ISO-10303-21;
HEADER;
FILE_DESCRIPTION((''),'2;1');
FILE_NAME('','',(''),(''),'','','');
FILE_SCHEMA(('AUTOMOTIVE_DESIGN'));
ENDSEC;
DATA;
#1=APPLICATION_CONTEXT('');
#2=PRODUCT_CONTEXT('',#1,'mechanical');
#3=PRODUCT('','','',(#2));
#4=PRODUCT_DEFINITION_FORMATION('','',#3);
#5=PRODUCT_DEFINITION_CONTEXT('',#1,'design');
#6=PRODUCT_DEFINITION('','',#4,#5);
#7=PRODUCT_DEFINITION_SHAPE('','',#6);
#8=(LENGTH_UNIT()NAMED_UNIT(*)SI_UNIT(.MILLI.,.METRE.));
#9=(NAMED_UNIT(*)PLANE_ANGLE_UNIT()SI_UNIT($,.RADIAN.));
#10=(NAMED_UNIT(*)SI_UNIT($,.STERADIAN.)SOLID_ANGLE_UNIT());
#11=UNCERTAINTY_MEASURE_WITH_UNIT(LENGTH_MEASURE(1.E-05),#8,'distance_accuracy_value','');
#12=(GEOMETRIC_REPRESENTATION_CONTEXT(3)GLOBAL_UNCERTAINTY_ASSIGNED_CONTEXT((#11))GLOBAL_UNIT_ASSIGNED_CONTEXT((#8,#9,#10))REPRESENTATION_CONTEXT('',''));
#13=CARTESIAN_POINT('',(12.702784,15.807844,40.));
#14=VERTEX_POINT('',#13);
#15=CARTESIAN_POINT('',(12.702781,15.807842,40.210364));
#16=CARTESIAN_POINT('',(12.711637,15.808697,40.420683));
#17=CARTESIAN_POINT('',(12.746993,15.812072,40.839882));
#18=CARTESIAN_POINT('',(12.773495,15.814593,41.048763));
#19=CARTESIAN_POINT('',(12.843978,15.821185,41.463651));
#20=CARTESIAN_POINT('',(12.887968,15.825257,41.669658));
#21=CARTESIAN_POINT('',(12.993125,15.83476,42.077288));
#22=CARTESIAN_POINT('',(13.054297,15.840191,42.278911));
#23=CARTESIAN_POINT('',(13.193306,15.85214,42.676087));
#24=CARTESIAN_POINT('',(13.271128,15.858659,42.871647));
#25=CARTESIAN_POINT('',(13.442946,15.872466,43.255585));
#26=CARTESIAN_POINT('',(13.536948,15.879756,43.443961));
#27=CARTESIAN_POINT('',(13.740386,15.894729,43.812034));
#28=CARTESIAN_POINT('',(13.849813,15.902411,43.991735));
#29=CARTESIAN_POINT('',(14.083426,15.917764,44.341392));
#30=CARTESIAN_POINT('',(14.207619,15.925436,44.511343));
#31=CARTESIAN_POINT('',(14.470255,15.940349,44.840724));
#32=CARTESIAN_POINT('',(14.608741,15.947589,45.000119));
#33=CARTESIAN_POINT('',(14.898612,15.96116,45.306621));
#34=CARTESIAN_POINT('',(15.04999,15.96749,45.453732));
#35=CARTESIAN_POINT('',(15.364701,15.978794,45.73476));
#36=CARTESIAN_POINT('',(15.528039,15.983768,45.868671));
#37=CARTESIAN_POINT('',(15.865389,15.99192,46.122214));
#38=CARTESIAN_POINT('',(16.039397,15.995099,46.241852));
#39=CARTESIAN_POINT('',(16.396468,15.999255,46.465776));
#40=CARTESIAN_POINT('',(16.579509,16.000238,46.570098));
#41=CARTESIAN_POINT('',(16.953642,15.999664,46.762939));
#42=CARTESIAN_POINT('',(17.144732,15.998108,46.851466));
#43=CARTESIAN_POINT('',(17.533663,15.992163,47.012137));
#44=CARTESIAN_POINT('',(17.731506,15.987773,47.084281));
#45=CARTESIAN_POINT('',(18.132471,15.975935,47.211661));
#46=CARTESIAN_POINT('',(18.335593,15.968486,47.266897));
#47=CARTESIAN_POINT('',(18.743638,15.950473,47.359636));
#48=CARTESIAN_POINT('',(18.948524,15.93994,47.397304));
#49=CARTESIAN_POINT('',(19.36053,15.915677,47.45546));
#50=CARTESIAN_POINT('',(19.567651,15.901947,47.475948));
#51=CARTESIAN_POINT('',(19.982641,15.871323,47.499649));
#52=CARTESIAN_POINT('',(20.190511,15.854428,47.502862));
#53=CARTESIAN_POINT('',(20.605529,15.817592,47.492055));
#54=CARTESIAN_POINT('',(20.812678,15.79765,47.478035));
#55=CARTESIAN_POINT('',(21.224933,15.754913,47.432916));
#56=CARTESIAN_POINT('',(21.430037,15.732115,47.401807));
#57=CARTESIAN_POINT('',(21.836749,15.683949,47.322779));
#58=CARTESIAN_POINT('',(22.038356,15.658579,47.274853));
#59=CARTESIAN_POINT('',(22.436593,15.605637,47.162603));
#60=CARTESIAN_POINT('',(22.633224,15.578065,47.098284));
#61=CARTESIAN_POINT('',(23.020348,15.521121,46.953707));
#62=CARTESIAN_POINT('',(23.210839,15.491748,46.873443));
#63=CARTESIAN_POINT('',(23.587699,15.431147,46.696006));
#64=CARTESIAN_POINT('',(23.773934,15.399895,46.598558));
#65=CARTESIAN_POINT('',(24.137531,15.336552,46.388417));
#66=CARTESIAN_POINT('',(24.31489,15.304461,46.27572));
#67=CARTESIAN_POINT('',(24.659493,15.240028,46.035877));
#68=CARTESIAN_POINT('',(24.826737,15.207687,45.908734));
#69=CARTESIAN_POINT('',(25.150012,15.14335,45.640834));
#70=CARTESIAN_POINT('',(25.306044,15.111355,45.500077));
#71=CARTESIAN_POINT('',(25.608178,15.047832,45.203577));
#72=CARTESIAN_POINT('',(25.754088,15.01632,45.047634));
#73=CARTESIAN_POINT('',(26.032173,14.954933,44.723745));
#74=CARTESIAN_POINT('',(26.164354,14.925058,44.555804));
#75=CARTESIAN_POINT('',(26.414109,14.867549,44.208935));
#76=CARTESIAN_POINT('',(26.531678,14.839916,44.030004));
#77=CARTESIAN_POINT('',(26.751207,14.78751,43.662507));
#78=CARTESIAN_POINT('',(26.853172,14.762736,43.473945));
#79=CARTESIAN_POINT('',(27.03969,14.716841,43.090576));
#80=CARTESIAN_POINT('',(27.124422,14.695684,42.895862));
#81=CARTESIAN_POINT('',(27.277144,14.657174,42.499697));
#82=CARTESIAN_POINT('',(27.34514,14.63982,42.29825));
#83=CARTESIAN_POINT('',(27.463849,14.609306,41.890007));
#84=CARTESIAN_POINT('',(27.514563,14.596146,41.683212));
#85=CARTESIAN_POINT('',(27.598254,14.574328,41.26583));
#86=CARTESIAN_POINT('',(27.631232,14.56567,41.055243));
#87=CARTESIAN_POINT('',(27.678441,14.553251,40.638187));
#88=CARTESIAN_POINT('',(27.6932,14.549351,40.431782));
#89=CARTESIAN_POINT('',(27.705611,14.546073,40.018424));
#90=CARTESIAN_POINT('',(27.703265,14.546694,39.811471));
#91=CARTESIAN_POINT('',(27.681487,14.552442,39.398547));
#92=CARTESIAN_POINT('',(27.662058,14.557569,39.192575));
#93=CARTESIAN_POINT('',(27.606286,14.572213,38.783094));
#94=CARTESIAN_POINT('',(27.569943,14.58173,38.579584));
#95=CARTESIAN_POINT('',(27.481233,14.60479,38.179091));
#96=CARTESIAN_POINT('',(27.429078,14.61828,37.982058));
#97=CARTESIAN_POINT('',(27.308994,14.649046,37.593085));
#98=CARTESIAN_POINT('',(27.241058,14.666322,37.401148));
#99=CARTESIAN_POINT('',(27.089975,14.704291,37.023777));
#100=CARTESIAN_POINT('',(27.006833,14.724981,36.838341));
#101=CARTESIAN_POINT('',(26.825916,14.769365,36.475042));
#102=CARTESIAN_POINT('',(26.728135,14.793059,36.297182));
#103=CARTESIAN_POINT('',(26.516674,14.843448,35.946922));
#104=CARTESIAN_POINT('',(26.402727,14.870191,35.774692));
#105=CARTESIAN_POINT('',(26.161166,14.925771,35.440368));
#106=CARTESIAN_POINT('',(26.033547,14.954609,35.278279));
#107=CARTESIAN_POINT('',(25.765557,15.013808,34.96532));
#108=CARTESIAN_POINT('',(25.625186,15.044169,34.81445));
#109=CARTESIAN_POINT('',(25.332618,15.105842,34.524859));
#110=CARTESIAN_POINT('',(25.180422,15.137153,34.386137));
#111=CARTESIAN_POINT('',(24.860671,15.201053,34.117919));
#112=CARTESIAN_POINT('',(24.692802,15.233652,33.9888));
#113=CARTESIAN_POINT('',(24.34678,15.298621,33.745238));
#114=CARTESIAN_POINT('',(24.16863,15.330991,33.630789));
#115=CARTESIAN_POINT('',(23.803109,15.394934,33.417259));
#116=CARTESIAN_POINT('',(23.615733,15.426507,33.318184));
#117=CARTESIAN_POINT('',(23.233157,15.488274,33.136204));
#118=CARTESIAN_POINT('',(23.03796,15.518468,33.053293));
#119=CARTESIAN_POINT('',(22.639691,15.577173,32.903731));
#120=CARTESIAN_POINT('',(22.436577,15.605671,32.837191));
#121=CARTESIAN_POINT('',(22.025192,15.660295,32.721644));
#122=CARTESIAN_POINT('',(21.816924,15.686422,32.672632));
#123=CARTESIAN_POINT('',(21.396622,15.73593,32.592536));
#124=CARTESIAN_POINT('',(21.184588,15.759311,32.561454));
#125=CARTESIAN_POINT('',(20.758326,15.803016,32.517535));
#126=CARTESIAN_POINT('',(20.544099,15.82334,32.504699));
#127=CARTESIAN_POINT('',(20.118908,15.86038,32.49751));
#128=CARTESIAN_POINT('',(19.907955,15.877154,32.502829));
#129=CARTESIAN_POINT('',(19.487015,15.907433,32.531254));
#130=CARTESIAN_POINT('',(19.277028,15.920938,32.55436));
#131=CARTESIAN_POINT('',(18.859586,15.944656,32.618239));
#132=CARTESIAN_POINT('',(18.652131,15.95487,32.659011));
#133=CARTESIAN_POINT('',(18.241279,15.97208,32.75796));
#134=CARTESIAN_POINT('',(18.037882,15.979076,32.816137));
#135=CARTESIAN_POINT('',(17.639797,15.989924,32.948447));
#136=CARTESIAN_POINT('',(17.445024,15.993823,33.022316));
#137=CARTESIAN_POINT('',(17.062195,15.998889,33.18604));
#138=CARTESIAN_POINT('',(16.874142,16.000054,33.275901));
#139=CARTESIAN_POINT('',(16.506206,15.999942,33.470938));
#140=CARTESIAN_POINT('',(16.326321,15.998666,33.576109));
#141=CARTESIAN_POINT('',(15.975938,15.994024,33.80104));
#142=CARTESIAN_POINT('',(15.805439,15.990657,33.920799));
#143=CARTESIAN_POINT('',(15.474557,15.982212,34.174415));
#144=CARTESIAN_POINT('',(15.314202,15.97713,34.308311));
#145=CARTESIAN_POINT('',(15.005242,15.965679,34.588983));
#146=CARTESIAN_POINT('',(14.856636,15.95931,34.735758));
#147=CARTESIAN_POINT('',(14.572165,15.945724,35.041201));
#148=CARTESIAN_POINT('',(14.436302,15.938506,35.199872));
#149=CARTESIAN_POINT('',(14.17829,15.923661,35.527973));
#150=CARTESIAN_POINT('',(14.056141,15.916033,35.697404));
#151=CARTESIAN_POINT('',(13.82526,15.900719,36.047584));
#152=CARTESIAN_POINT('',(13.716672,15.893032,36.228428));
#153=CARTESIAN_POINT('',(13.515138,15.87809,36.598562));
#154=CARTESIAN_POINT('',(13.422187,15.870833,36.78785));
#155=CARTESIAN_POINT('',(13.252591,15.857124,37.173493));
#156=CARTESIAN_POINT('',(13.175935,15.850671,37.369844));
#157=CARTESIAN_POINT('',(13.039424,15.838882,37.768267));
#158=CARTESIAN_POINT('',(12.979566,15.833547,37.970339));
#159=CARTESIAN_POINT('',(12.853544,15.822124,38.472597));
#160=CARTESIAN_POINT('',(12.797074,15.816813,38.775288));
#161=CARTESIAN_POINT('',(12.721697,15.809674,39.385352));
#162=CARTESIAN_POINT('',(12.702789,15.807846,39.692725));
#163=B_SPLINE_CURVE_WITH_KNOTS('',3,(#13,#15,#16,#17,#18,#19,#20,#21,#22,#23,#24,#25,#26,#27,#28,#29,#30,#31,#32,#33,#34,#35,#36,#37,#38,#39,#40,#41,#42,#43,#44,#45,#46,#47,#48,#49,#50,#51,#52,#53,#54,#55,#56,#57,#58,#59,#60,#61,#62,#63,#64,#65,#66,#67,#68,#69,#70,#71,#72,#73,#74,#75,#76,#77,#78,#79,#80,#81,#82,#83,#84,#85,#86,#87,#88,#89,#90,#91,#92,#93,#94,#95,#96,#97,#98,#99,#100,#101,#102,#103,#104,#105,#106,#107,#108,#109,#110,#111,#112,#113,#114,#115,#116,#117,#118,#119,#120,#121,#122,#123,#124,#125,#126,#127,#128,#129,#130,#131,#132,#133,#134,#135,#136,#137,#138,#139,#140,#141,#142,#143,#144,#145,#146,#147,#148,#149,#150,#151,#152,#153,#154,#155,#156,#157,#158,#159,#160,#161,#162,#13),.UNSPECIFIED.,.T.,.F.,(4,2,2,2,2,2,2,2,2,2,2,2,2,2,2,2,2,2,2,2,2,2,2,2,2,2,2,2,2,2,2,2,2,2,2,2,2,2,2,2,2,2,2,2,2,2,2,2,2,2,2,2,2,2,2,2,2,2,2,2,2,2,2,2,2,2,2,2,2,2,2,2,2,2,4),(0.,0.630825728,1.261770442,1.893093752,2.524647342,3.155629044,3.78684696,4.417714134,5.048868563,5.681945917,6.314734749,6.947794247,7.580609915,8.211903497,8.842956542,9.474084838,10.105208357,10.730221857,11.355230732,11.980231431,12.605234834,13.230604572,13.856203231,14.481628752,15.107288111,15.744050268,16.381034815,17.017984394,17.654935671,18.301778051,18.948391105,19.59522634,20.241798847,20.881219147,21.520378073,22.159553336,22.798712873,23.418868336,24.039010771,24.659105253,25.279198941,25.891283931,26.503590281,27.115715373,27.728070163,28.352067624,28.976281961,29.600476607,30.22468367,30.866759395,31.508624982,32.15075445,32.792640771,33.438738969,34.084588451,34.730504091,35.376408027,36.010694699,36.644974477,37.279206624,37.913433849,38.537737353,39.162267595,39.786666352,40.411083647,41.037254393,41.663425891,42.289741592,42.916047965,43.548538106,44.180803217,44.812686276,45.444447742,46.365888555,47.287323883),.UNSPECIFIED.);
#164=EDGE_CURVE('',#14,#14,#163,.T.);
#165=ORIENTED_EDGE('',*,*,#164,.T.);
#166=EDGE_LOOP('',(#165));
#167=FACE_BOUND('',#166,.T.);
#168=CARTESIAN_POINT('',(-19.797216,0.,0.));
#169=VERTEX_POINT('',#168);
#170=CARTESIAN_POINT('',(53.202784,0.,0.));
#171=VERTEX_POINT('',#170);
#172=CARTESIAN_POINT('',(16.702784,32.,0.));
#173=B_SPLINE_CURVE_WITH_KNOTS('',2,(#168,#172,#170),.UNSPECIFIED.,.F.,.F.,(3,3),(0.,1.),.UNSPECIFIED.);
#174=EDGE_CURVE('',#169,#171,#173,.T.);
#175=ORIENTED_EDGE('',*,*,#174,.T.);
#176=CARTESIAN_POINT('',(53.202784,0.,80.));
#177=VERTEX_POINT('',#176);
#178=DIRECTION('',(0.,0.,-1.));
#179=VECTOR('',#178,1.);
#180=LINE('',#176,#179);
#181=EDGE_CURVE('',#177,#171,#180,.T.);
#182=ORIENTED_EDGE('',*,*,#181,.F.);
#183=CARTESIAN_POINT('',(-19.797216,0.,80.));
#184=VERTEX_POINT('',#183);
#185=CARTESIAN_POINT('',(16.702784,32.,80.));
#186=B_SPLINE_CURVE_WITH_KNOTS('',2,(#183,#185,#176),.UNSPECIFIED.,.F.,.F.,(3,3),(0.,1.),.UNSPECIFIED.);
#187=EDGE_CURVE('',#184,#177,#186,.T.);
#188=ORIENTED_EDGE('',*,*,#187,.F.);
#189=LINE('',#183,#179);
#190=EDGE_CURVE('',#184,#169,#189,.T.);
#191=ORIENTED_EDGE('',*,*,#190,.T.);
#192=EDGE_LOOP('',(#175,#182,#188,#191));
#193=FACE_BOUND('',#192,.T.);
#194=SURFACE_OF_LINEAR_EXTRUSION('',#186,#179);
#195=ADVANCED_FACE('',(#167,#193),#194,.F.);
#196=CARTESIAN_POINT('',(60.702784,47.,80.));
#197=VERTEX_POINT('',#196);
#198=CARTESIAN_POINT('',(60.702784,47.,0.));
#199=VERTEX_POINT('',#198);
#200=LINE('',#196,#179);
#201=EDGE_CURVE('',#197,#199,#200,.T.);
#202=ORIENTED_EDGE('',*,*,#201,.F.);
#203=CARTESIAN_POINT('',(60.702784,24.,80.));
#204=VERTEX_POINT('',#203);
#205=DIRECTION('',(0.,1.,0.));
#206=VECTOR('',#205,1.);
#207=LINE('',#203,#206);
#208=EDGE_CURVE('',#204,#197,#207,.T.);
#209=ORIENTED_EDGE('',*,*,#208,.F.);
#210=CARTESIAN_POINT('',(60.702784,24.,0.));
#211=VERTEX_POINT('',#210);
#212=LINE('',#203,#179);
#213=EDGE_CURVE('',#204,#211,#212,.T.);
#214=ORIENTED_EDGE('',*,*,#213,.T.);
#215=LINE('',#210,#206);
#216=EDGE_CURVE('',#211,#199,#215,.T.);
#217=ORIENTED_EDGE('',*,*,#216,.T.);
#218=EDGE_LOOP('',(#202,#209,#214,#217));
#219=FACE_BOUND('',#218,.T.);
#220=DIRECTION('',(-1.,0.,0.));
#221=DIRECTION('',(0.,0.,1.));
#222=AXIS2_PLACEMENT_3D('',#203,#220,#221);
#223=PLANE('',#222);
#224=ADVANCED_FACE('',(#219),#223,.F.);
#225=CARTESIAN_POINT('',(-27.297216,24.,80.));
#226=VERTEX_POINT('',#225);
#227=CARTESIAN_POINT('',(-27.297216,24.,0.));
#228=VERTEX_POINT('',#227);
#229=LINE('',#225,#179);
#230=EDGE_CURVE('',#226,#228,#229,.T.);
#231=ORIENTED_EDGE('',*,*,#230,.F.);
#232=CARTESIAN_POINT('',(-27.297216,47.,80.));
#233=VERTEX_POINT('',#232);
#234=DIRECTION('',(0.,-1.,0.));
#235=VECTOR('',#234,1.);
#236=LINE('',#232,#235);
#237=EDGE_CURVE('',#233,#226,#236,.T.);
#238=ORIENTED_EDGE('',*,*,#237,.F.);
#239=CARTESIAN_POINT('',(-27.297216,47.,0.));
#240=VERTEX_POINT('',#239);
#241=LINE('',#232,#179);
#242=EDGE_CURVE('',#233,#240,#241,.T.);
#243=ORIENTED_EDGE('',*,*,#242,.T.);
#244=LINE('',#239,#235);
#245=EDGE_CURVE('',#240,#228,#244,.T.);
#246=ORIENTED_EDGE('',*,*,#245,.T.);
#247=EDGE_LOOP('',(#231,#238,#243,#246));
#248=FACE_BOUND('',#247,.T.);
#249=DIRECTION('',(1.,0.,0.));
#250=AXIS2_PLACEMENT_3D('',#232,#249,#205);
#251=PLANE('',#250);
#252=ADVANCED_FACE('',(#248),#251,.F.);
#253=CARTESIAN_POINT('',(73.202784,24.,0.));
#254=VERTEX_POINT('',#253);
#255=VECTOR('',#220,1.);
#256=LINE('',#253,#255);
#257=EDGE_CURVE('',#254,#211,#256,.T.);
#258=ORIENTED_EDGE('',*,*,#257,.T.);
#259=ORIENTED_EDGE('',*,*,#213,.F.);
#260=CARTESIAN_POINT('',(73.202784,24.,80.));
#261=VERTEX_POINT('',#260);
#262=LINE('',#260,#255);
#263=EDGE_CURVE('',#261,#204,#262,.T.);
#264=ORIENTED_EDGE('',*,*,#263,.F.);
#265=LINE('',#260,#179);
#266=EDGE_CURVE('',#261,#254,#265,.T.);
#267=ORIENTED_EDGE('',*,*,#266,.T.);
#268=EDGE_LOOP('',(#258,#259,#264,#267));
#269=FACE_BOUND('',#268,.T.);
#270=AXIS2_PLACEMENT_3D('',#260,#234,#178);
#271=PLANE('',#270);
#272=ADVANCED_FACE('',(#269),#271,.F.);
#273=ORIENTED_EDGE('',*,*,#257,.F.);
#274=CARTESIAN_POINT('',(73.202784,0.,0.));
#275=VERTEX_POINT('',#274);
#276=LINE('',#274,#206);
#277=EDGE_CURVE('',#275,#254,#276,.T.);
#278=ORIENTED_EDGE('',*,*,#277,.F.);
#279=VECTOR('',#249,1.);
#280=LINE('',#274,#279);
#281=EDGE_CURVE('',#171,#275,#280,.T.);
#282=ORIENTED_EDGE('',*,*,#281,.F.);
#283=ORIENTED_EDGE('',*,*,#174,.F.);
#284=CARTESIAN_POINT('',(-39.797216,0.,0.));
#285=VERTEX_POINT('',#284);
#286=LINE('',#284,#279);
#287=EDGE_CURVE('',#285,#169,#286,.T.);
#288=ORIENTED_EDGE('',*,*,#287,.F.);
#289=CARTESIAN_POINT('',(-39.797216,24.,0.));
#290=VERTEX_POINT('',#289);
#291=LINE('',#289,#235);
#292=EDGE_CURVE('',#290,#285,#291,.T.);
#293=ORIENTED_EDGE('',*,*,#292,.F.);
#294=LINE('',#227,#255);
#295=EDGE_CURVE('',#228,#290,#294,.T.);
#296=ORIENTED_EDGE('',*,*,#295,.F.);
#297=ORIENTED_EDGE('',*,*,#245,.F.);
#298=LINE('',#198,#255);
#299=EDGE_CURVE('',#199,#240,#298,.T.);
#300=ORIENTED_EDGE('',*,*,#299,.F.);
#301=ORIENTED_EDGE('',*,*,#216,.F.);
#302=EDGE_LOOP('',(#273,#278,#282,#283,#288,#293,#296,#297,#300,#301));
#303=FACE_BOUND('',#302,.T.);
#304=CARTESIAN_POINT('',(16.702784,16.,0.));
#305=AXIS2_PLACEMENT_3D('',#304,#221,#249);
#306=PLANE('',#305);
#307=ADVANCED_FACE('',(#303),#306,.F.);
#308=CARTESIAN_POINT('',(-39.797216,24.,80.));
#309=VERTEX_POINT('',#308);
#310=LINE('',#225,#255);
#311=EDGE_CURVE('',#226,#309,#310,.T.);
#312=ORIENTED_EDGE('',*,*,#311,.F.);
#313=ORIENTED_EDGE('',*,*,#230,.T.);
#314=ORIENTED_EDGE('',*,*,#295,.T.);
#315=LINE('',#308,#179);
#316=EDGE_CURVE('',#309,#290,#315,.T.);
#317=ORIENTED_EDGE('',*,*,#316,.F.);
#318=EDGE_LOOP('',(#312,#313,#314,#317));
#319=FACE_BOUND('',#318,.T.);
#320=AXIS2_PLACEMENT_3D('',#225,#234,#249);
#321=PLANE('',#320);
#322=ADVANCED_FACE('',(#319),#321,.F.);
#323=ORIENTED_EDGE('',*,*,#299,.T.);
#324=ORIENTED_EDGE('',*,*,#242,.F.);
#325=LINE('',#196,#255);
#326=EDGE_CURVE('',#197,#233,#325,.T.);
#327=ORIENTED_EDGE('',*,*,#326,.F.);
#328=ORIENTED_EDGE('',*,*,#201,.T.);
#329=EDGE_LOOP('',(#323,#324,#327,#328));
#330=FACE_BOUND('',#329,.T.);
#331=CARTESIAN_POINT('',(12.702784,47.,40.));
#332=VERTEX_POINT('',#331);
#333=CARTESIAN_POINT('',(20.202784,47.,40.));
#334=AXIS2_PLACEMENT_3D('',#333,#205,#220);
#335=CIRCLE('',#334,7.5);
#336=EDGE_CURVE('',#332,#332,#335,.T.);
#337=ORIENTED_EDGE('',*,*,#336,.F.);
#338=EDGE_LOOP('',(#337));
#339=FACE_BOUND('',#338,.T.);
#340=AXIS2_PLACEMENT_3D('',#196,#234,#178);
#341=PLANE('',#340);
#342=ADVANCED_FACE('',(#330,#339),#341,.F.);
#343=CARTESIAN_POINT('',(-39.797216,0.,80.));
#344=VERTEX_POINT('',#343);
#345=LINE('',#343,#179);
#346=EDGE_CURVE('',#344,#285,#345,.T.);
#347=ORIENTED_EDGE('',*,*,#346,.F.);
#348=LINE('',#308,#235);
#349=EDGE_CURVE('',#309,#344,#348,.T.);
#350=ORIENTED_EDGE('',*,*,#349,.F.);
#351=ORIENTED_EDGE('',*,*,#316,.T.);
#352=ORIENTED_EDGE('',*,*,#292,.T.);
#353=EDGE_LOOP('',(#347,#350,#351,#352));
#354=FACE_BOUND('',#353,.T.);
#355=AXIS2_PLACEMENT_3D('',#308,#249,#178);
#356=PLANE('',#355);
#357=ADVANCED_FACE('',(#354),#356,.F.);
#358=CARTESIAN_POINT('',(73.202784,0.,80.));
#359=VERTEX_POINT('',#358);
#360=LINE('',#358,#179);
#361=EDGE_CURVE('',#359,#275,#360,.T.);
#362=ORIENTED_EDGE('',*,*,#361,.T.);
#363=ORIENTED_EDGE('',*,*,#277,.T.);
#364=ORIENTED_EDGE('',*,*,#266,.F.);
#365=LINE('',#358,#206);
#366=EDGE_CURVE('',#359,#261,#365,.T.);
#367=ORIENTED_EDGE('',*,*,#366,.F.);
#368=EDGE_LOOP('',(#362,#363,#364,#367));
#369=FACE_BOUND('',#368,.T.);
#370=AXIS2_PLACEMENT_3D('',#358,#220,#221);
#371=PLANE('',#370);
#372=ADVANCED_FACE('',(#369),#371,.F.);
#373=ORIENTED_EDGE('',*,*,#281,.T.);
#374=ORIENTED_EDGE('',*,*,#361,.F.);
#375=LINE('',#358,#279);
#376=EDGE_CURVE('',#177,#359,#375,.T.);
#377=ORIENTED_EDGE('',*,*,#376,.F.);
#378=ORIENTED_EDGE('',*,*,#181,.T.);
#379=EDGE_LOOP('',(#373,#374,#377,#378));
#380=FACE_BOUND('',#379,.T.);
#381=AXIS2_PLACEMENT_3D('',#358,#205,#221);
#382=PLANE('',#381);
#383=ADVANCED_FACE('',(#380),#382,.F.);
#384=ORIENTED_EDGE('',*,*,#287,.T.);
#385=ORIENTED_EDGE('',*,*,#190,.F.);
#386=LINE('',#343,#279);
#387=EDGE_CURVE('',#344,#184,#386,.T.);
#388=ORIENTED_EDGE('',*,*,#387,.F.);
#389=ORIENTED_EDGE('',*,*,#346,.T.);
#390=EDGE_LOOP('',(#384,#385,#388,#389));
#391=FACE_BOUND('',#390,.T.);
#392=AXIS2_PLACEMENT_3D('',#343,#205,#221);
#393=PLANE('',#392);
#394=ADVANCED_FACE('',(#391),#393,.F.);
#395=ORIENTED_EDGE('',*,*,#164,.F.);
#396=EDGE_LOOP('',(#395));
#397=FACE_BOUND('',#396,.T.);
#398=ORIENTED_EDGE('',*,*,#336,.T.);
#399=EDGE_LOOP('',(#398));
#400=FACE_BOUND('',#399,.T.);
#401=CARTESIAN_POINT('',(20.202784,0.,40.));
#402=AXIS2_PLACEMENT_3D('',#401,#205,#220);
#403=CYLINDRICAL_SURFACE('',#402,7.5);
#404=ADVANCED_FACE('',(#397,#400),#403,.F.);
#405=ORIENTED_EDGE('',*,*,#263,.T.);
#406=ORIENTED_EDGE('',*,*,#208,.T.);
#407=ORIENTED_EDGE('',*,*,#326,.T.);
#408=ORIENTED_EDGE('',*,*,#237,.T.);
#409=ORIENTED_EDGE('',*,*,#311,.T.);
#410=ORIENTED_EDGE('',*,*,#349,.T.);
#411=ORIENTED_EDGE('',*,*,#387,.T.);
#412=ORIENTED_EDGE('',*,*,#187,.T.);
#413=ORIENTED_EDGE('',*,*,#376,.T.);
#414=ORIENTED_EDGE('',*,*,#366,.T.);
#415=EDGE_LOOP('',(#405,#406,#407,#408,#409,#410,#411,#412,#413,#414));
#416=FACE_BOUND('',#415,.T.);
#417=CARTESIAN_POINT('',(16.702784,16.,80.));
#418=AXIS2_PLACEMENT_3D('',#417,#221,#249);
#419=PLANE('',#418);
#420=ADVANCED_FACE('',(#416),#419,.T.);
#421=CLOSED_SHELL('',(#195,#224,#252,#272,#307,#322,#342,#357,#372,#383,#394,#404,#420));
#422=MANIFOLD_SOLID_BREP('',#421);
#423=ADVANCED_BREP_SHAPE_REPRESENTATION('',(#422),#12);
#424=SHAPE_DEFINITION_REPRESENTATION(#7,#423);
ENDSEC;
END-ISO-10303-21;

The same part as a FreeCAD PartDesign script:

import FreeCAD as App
import Part
import Sketcher

doc = App.newDocument("Part")
body = doc.addObject("PartDesign::Body", "Body")

sketch1 = body.newObject("Sketcher::SketchObject", "Sketch")
sketch1.AttachmentSupport = (doc.getObject("XY_Plane"), [""])
sketch1.MapMode = "FlatFace"
sketch1.addGeometry([
    Part.LineSegment(App.Vector(60.702784, 47, 0), App.Vector(-27.297216, 47, 0)),
    Part.LineSegment(App.Vector(-27.297216, 47, 0), App.Vector(-27.297216, 24, 0)),
    Part.LineSegment(App.Vector(-27.297216, 24, 0), App.Vector(-39.797216, 24, 0)),
    Part.LineSegment(App.Vector(-39.797216, 24, 0), App.Vector(-39.797216, 0, 0)),
    Part.LineSegment(App.Vector(-39.797216, 0, 0), App.Vector(-19.797216, 0, 0)),
    Part.BSplineCurve([App.Vector(-19.797216, 0, 0), App.Vector(16.702784, 32, 0), App.Vector(53.202784, 0, 0)], [3, 3], [0, 1], False, 2, [1, 1, 1], False),
    Part.LineSegment(App.Vector(53.202784, 0, 0), App.Vector(73.202784, 0, 0)),
    Part.LineSegment(App.Vector(73.202784, 0, 0), App.Vector(73.202784, 24, 0)),
    Part.LineSegment(App.Vector(73.202784, 24, 0), App.Vector(60.702784, 24, 0)),
    Part.LineSegment(App.Vector(60.702784, 24, 0), App.Vector(60.702784, 47, 0)),
], False)
sketch1.addConstraint([
    Sketcher.Constraint("Block", 5),
    Sketcher.Constraint("Coincident", 0, 2, 1, 1),
    Sketcher.Constraint("Coincident", 1, 2, 2, 1),
    Sketcher.Constraint("Coincident", 2, 2, 3, 1),
    Sketcher.Constraint("Coincident", 3, 2, 4, 1),
    Sketcher.Constraint("Coincident", 4, 2, 5, 1),
    Sketcher.Constraint("Coincident", 5, 2, 6, 1),
    Sketcher.Constraint("Coincident", 6, 2, 7, 1),
    Sketcher.Constraint("Coincident", 7, 2, 8, 1),
    Sketcher.Constraint("Coincident", 8, 2, 9, 1),
    Sketcher.Constraint("Coincident", 9, 2, 0, 1),
    Sketcher.Constraint("Horizontal", 0),
    Sketcher.Constraint("Vertical", 1),
    Sketcher.Constraint("Horizontal", 2),
    Sketcher.Constraint("Vertical", 3),
    Sketcher.Constraint("Horizontal", 4),
    Sketcher.Constraint("Horizontal", 6),
    Sketcher.Constraint("Vertical", 7),
    Sketcher.Constraint("Horizontal", 8),
    Sketcher.Constraint("Vertical", 9),
    Sketcher.Constraint("Horizontal", 2, 2, 7, 2),
    Sketcher.Constraint("Equal", 4, 6),
    Sketcher.Constraint("Equal", 2, 8),
    Sketcher.Constraint("DistanceX", 0, 2, 0, 1, 88.0),
    Sketcher.Constraint("DistanceX", 4, 1, 4, 2, 20.0),
    Sketcher.Constraint("DistanceY", 1, 2, 1, 1, 23.0),
    Sketcher.Constraint("DistanceY", 3, 2, 3, 1, 24.0),
])
pad1 = body.newObject("PartDesign::Pad", "Pad")
pad1.Profile = sketch1
pad1.Length = 80

sketch2 = body.newObject("Sketcher::SketchObject", "Sketch001")
sketch2.AttachmentSupport = (doc.getObject("XZ_Plane"), [""])
sketch2.MapMode = "FlatFace"
sketch2.AttachmentOffset = App.Placement(App.Vector(0, 0, -47), App.Rotation())
sketch2.addGeometry(Part.Circle(App.Vector(20.202784, 40, 0), App.Vector(0, 0, 1), 7.5), False)
sketch2.addConstraint([
    Sketcher.Constraint("Diameter", 0, 15.0),
    Sketcher.Constraint("DistanceY", -1, 1, 0, 3, 40.0),
    Sketcher.Constraint("DistanceX", -1, 1, 0, 3, 20.202784),
])
pocket1 = body.newObject("PartDesign::Pocket", "Pocket")
pocket1.Profile = sketch2
pocket1.Type = "ThroughAll"
pocket1.Reversed = True

doc.recompute()
